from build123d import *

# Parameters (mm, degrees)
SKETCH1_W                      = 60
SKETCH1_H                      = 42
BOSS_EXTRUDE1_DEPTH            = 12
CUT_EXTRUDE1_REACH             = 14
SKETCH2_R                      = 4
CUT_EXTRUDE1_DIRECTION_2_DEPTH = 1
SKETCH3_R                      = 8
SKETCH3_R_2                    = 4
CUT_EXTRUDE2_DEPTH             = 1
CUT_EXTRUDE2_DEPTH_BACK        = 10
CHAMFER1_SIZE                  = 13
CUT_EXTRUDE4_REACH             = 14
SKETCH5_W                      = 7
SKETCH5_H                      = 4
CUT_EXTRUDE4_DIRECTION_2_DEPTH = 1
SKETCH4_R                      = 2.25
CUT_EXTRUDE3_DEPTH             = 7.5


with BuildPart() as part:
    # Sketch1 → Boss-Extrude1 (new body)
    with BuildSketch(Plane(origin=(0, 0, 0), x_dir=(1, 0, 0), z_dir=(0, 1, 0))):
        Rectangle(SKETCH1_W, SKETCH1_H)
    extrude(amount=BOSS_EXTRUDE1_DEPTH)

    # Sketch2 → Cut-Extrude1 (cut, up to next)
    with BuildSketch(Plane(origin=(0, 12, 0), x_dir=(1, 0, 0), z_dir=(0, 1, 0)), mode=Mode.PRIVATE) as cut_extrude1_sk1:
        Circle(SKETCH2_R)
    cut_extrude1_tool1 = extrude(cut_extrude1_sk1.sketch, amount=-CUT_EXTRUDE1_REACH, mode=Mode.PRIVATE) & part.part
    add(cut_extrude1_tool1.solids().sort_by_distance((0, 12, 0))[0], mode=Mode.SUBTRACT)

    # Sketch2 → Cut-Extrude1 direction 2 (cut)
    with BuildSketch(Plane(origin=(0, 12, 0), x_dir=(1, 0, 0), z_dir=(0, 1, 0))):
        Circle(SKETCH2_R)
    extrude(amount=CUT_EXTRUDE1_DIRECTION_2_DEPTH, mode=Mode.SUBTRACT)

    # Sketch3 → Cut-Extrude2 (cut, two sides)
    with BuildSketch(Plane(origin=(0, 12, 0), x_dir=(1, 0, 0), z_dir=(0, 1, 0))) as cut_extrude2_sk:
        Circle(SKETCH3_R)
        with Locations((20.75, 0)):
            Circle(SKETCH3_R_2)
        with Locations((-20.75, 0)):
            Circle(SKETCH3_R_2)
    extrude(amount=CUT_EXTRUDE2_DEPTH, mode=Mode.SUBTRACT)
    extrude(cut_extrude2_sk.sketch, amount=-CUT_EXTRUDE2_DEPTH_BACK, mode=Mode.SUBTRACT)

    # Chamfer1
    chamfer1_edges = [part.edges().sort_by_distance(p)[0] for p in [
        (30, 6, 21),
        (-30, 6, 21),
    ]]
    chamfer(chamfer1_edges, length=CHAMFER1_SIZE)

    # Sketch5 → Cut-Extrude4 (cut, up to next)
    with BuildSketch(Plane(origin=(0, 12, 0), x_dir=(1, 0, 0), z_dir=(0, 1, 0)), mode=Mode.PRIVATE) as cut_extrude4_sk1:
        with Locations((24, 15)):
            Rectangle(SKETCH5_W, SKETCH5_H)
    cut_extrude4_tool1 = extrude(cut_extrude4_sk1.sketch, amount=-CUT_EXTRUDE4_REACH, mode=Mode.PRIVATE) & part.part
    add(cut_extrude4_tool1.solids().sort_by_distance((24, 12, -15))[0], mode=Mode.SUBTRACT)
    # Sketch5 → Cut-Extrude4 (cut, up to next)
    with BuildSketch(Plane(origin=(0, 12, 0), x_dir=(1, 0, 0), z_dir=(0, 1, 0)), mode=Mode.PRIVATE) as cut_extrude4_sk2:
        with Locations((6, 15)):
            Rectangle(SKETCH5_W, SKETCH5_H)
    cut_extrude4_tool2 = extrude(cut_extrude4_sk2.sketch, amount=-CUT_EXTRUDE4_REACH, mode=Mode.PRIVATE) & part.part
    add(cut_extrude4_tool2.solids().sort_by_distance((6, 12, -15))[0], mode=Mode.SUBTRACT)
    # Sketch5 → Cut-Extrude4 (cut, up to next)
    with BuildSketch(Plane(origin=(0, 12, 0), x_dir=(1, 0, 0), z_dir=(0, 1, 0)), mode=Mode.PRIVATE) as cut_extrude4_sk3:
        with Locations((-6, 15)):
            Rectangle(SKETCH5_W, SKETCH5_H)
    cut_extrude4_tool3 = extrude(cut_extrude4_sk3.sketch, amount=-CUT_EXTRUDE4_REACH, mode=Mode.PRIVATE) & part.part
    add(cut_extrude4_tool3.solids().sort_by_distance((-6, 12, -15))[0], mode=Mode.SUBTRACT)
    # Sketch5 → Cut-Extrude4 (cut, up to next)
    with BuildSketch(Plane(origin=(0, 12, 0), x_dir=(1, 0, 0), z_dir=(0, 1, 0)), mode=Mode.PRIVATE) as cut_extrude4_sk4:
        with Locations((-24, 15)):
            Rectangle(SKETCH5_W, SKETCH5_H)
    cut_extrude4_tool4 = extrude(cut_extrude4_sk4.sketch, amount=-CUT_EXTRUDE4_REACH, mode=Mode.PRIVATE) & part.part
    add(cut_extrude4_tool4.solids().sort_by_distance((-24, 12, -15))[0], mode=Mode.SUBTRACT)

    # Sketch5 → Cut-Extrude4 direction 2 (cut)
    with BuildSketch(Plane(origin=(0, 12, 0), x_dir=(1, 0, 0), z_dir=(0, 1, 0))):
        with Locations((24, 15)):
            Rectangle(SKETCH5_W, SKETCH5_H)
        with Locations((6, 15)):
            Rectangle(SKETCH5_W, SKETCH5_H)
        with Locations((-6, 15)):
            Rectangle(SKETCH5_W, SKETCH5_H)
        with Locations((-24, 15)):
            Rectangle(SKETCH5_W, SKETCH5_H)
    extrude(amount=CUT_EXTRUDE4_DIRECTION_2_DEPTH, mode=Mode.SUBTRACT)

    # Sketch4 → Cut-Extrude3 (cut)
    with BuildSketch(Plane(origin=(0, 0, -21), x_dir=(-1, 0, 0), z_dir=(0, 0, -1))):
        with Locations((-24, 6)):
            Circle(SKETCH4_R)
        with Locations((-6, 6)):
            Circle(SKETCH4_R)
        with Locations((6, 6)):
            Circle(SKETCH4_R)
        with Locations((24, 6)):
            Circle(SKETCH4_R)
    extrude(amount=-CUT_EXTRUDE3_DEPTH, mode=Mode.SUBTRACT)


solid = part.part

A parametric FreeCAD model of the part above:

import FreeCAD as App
import Part
import Sketcher


def edges_at(feature, points):
    """Names of the edges that pass closest to the given points."""
    edges = feature.Shape.Edges
    near = lambda p: min(range(len(edges)), key=lambda i: edges[i].distToShape(Part.Vertex(*p))[0])
    return sorted({f"Edge{near(p) + 1}" for p in points})

doc = App.newDocument("Part")
body = doc.addObject("PartDesign::Body", "Body")

# Sketch on XZ plane
sketch1 = doc.addObject("Sketcher::SketchObject", "Sketch")
body.addObject(sketch1)
sketch1.AttachmentSupport = (doc.XZ_Plane, [""])
sketch1.MapMode = "FlatFace"
sketch1.addGeometry([
    Part.LineSegment(App.Vector(-30, -21, 0), App.Vector(-30, 21, 0)),
    Part.LineSegment(App.Vector(-30, 21, 0), App.Vector(30, 21, 0)),
    Part.LineSegment(App.Vector(30, 21, 0), App.Vector(30, -21, 0)),
    Part.LineSegment(App.Vector(30, -21, 0), App.Vector(-30, -21, 0)),
], False)
sketch1.addConstraint([
    Sketcher.Constraint("Coincident", 0, 2, 1, 1),
    Sketcher.Constraint("Coincident", 1, 2, 2, 1),
    Sketcher.Constraint("Coincident", 2, 2, 3, 1),
    Sketcher.Constraint("Coincident", 3, 2, 0, 1),
    Sketcher.Constraint("Vertical", 0),
    Sketcher.Constraint("Horizontal", 1),
    Sketcher.Constraint("Vertical", 2),
    Sketcher.Constraint("Horizontal", 3),
    Sketcher.Constraint("Symmetric", 0, 2, 2, 2, -1, 1),
    Sketcher.Constraint("DistanceX", 1, 1, 1, 2, 60.0),
    Sketcher.Constraint("DistanceY", 0, 1, 0, 2, 42.0),
])
pad1 = doc.addObject("PartDesign::Pad", "Pad")
body.addObject(pad1)
pad1.Profile = sketch1
pad1.Length = 12
pad1.Reversed = True

# Sketch on XZ plane
sketch2 = doc.addObject("Sketcher::SketchObject", "Sketch001")
body.addObject(sketch2)
sketch2.AttachmentSupport = (doc.XZ_Plane, [""])
sketch2.MapMode = "FlatFace"
sketch2.AttachmentOffset = App.Placement(App.Vector(0, 0, -12), App.Rotation())
sketch2.addGeometry(Part.Circle(App.Vector(0, 0, 0), App.Vector(0, 0, 1), 4), False)
sketch2.addConstraint([
    Sketcher.Constraint("Coincident", 0, 3, -1, 1),
    Sketcher.Constraint("Diameter", 0, 8.0),
])
pocket1 = doc.addObject("PartDesign::Pocket", "Pocket")
body.addObject(pocket1)
pocket1.Profile = sketch2
pocket1.Type = "UpToFirst"
pocket1.Reversed = True

# Sketch on XZ plane
sketch3 = doc.addObject("Sketcher::SketchObject", "Sketch002")
body.addObject(sketch3)
sketch3.AttachmentSupport = (doc.XZ_Plane, [""])
sketch3.MapMode = "FlatFace"
sketch3.AttachmentOffset = App.Placement(App.Vector(0, 0, -12), App.Rotation())
sketch3.addGeometry(Part.Circle(App.Vector(0, 0, 0), App.Vector(0, 0, 1), 4), False)
sketch3.addConstraint([
    Sketcher.Constraint("Coincident", 0, 3, -1, 1),
    Sketcher.Constraint("Diameter", 0, 8.0),
])
pocket2 = doc.addObject("PartDesign::Pocket", "Pocket001")
body.addObject(pocket2)
pocket2.Profile = sketch3
pocket2.Length = 1

# Sketch on XZ plane
sketch4 = doc.addObject("Sketcher::SketchObject", "Sketch003")
body.addObject(sketch4)
sketch4.AttachmentSupport = (doc.XZ_Plane, [""])
sketch4.MapMode = "FlatFace"
sketch4.AttachmentOffset = App.Placement(App.Vector(0, 0, -12), App.Rotation())
sketch4.addGeometry([
    Part.Circle(App.Vector(0, 0, 0), App.Vector(0, 0, 1), 8),
    Part.Circle(App.Vector(20.75, 0, 0), App.Vector(0, 0, 1), 4),
    Part.Circle(App.Vector(-20.75, 0, 0), App.Vector(0, 0, 1), 4),
], False)
sketch4.addConstraint([
    Sketcher.Constraint("Coincident", 0, 3, -1, 1),
    Sketcher.Constraint("Equal", 1, 2),
    Sketcher.Constraint("Symmetric", 1, 3, 2, 3, -1, 1),
    Sketcher.Constraint("PointOnObject", 1, 3, -1),
    Sketcher.Constraint("Diameter", 0, 16.0),
    Sketcher.Constraint("Diameter", 1, 8.0),
    Sketcher.Constraint("DistanceX", 2, 3, 1, 3, 41.5),
])
pocket3 = doc.addObject("PartDesign::Pocket", "Pocket002")
body.addObject(pocket3)
pocket3.Profile = sketch4
pocket3.Type = "TwoLengths"
pocket3.Length = 1
pocket3.Length2 = 10
doc.recompute()

chamfer = doc.addObject("PartDesign::Chamfer", "Chamfer")
body.addObject(chamfer)
chamfer.Base = (pocket3, edges_at(pocket3, [(30, 6, 21), (-30, 6, 21)]))
chamfer.Size = 13

# Sketch on XZ plane
sketch5 = doc.addObject("Sketcher::SketchObject", "Sketch004")
body.addObject(sketch5)
sketch5.AttachmentSupport = (doc.XZ_Plane, [""])
sketch5.MapMode = "FlatFace"
sketch5.AttachmentOffset = App.Placement(App.Vector(0, 0, -12), App.Rotation())
sketch5.addGeometry([
    Part.LineSegment(App.Vector(20.5, -17, 0), App.Vector(20.5, -13, 0)),
    Part.LineSegment(App.Vector(20.5, -13, 0), App.Vector(27.5, -13, 0)),
    Part.LineSegment(App.Vector(27.5, -13, 0), App.Vector(27.5, -17, 0)),
    Part.LineSegment(App.Vector(27.5, -17, 0), App.Vector(20.5, -17, 0)),
], False)
sketch5.addConstraint([
    Sketcher.Constraint("Coincident", 0, 2, 1, 1),
    Sketcher.Constraint("Coincident", 1, 2, 2, 1),
    Sketcher.Constraint("Coincident", 2, 2, 3, 1),
    Sketcher.Constraint("Coincident", 3, 2, 0, 1),
    Sketcher.Constraint("Vertical", 0),
    Sketcher.Constraint("Horizontal", 1),
    Sketcher.Constraint("Vertical", 2),
    Sketcher.Constraint("Horizontal", 3),
    Sketcher.Constraint("DistanceX", 1, 1, 1, 2, 7.0),
    Sketcher.Constraint("DistanceY", 0, 1, 0, 2, 4.0),
    Sketcher.Constraint("DistanceY", 0, 2, -1, 1, 13.0),
    Sketcher.Constraint("DistanceX", -1, 1, 0, 2, 20.5),
])
pocket4 = doc.addObject("PartDesign::Pocket", "Pocket003")
body.addObject(pocket4)
pocket4.Profile = sketch5
pocket4.Type = "UpToFirst"
pocket4.Reversed = True

# Sketch on XZ plane
sketch6 = doc.addObject("Sketcher::SketchObject", "Sketch005")
body.addObject(sketch6)
sketch6.AttachmentSupport = (doc.XZ_Plane, [""])
sketch6.MapMode = "FlatFace"
sketch6.AttachmentOffset = App.Placement(App.Vector(0, 0, -12), App.Rotation())
sketch6.addGeometry([
    Part.LineSegment(App.Vector(2.5, -17, 0), App.Vector(2.5, -13, 0)),
    Part.LineSegment(App.Vector(2.5, -13, 0), App.Vector(9.5, -13, 0)),
    Part.LineSegment(App.Vector(9.5, -13, 0), App.Vector(9.5, -17, 0)),
    Part.LineSegment(App.Vector(9.5, -17, 0), App.Vector(2.5, -17, 0)),
], False)
sketch6.addConstraint([
    Sketcher.Constraint("Coincident", 0, 2, 1, 1),
    Sketcher.Constraint("Coincident", 1, 2, 2, 1),
    Sketcher.Constraint("Coincident", 2, 2, 3, 1),
    Sketcher.Constraint("Coincident", 3, 2, 0, 1),
    Sketcher.Constraint("Vertical", 0),
    Sketcher.Constraint("Horizontal", 1),
    Sketcher.Constraint("Vertical", 2),
    Sketcher.Constraint("Horizontal", 3),
    Sketcher.Constraint("DistanceX", 1, 1, 1, 2, 7.0),
    Sketcher.Constraint("DistanceY", 0, 1, 0, 2, 4.0),
    Sketcher.Constraint("DistanceY", 0, 2, -1, 1, 13.0),
    Sketcher.Constraint("DistanceX", -1, 1, 0, 2, 2.5),
])
pocket5 = doc.addObject("PartDesign::Pocket", "Pocket004")
body.addObject(pocket5)
pocket5.Profile = sketch6
pocket5.Type = "UpToFirst"
pocket5.Reversed = True

# Sketch on XZ plane
sketch7 = doc.addObject("Sketcher::SketchObject", "Sketch006")
body.addObject(sketch7)
sketch7.AttachmentSupport = (doc.XZ_Plane, [""])
sketch7.MapMode = "FlatFace"
sketch7.AttachmentOffset = App.Placement(App.Vector(0, 0, -12), App.Rotation())
sketch7.addGeometry([
    Part.LineSegment(App.Vector(-9.5, -17, 0), App.Vector(-9.5, -13, 0)),
    Part.LineSegment(App.Vector(-9.5, -13, 0), App.Vector(-2.5, -13, 0)),
    Part.LineSegment(App.Vector(-2.5, -13, 0), App.Vector(-2.5, -17, 0)),
    Part.LineSegment(App.Vector(-2.5, -17, 0), App.Vector(-9.5, -17, 0)),
], False)
sketch7.addConstraint([
    Sketcher.Constraint("Coincident", 0, 2, 1, 1),
    Sketcher.Constraint("Coincident", 1, 2, 2, 1),
    Sketcher.Constraint("Coincident", 2, 2, 3, 1),
    Sketcher.Constraint("Coincident", 3, 2, 0, 1),
    Sketcher.Constraint("Vertical", 0),
    Sketcher.Constraint("Horizontal", 1),
    Sketcher.Constraint("Vertical", 2),
    Sketcher.Constraint("Horizontal", 3),
    Sketcher.Constraint("DistanceX", 1, 1, 1, 2, 7.0),
    Sketcher.Constraint("DistanceY", 0, 1, 0, 2, 4.0),
    Sketcher.Constraint("DistanceY", 0, 2, -1, 1, 13.0),
    Sketcher.Constraint("DistanceX", 0, 2, -1, 1, 9.5),
])
pocket6 = doc.addObject("PartDesign::Pocket", "Pocket005")
body.addObject(pocket6)
pocket6.Profile = sketch7
pocket6.Type = "UpToFirst"
pocket6.Reversed = True

# Sketch on XZ plane
sketch8 = doc.addObject("Sketcher::SketchObject", "Sketch007")
body.addObject(sketch8)
sketch8.AttachmentSupport = (doc.XZ_Plane, [""])
sketch8.MapMode = "FlatFace"
sketch8.AttachmentOffset = App.Placement(App.Vector(0, 0, -12), App.Rotation())
sketch8.addGeometry([
    Part.LineSegment(App.Vector(-27.5, -17, 0), App.Vector(-27.5, -13, 0)),
    Part.LineSegment(App.Vector(-27.5, -13, 0), App.Vector(-20.5, -13, 0)),
    Part.LineSegment(App.Vector(-20.5, -13, 0), App.Vector(-20.5, -17, 0)),
    Part.LineSegment(App.Vector(-20.5, -17, 0), App.Vector(-27.5, -17, 0)),
], False)
sketch8.addConstraint([
    Sketcher.Constraint("Coincident", 0, 2, 1, 1),
    Sketcher.Constraint("Coincident", 1, 2, 2, 1),
    Sketcher.Constraint("Coincident", 2, 2, 3, 1),
    Sketcher.Constraint("Coincident", 3, 2, 0, 1),
    Sketcher.Constraint("Vertical", 0),
    Sketcher.Constraint("Horizontal", 1),
    Sketcher.Constraint("Vertical", 2),
    Sketcher.Constraint("Horizontal", 3),
    Sketcher.Constraint("DistanceX", 1, 1, 1, 2, 7.0),
    Sketcher.Constraint("DistanceY", 0, 1, 0, 2, 4.0),
    Sketcher.Constraint("DistanceY", 0, 2, -1, 1, 13.0),
    Sketcher.Constraint("DistanceX", 0, 2, -1, 1, 27.5),
])
pocket7 = doc.addObject("PartDesign::Pocket", "Pocket006")
body.addObject(pocket7)
pocket7.Profile = sketch8
pocket7.Type = "UpToFirst"
pocket7.Reversed = True

# Sketch on XZ plane
sketch9 = doc.addObject("Sketcher::SketchObject", "Sketch008")
body.addObject(sketch9)
sketch9.AttachmentSupport = (doc.XZ_Plane, [""])
sketch9.MapMode = "FlatFace"
sketch9.AttachmentOffset = App.Placement(App.Vector(0, 0, -12), App.Rotation())
sketch9.addGeometry([
    Part.LineSegment(App.Vector(20.5, -17, 0), App.Vector(20.5, -13, 0)),  # 0
    Part.LineSegment(App.Vector(20.5, -13, 0), App.Vector(27.5, -13, 0)),  # 1
    Part.LineSegment(App.Vector(27.5, -13, 0), App.Vector(27.5, -17, 0)),  # 2
    Part.LineSegment(App.Vector(27.5, -17, 0), App.Vector(20.5, -17, 0)),  # 3
    Part.LineSegment(App.Vector(2.5, -17, 0), App.Vector(2.5, -13, 0)),  # 4
    Part.LineSegment(App.Vector(2.5, -13, 0), App.Vector(9.5, -13, 0)),  # 5
    Part.LineSegment(App.Vector(9.5, -13, 0), App.Vector(9.5, -17, 0)),  # 6
    Part.LineSegment(App.Vector(9.5, -17, 0), App.Vector(2.5, -17, 0)),  # 7
    Part.LineSegment(App.Vector(-9.5, -17, 0), App.Vector(-9.5, -13, 0)),  # 8
    Part.LineSegment(App.Vector(-9.5, -13, 0), App.Vector(-2.5, -13, 0)),  # 9
    Part.LineSegment(App.Vector(-2.5, -13, 0), App.Vector(-2.5, -17, 0)),  # 10
    Part.LineSegment(App.Vector(-2.5, -17, 0), App.Vector(-9.5, -17, 0)),  # 11
    Part.LineSegment(App.Vector(-27.5, -17, 0), App.Vector(-27.5, -13, 0)),  # 12
    Part.LineSegment(App.Vector(-27.5, -13, 0), App.Vector(-20.5, -13, 0)),  # 13
    Part.LineSegment(App.Vector(-20.5, -13, 0), App.Vector(-20.5, -17, 0)),  # 14
    Part.LineSegment(App.Vector(-20.5, -17, 0), App.Vector(-27.5, -17, 0)),  # 15
], False)
sketch9.addConstraint([
    Sketcher.Constraint("Coincident", 0, 2, 1, 1),
    Sketcher.Constraint("Coincident", 1, 2, 2, 1),
    Sketcher.Constraint("Coincident", 2, 2, 3, 1),
    Sketcher.Constraint("Coincident", 3, 2, 0, 1),
    Sketcher.Constraint("Coincident", 4, 2, 5, 1),
    Sketcher.Constraint("Coincident", 5, 2, 6, 1),
    Sketcher.Constraint("Coincident", 6, 2, 7, 1),
    Sketcher.Constraint("Coincident", 7, 2, 4, 1),
    Sketcher.Constraint("Coincident", 8, 2, 9, 1),
    Sketcher.Constraint("Coincident", 9, 2, 10, 1),
    Sketcher.Constraint("Coincident", 10, 2, 11, 1),
    Sketcher.Constraint("Coincident", 11, 2, 8, 1),
    Sketcher.Constraint("Coincident", 12, 2, 13, 1),
    Sketcher.Constraint("Coincident", 13, 2, 14, 1),
    Sketcher.Constraint("Coincident", 14, 2, 15, 1),
    Sketcher.Constraint("Coincident", 15, 2, 12, 1),
    Sketcher.Constraint("Vertical", 0),
    Sketcher.Constraint("Horizontal", 1),
    Sketcher.Constraint("Vertical", 2),
    Sketcher.Constraint("Horizontal", 3),
    Sketcher.Constraint("Vertical", 4),
    Sketcher.Constraint("Horizontal", 5),
    Sketcher.Constraint("Vertical", 6),
    Sketcher.Constraint("Horizontal", 7),
    Sketcher.Constraint("Vertical", 8),
    Sketcher.Constraint("Horizontal", 9),
    Sketcher.Constraint("Vertical", 10),
    Sketcher.Constraint("Horizontal", 11),
    Sketcher.Constraint("Vertical", 12),
    Sketcher.Constraint("Horizontal", 13),
    Sketcher.Constraint("Vertical", 14),
    Sketcher.Constraint("Horizontal", 15),
    Sketcher.Constraint("Symmetric", 5, 2, 8, 2, -2),
    Sketcher.Constraint("Symmetric", 7, 2, 10, 2, -2),
    Sketcher.Constraint("Symmetric", 1, 2, 12, 2, -2),
    Sketcher.Constraint("Symmetric", 3, 2, 14, 2, -2),
    Sketcher.Constraint("Horizontal", 1, 2, 4, 2),
    Sketcher.Constraint("Horizontal", 3, 2, 6, 2),
    Sketcher.Constraint("Equal", 3, 5),
    Sketcher.Constraint("DistanceX", 1, 1, 1, 2, 7.0),
    Sketcher.Constraint("DistanceY", 0, 1, 0, 2, 4.0),
    Sketcher.Constraint("DistanceY", 0, 2, -1, 1, 13.0),
    Sketcher.Constraint("DistanceX", 4, 2, 0, 2, 18.0),
    Sketcher.Constraint("DistanceX", 8, 2, 4, 2, 12.0),
])
pocket8 = doc.addObject("PartDesign::Pocket", "Pocket007")
body.addObject(pocket8)
pocket8.Profile = sketch9
pocket8.Length = 1

# Sketch on XY plane
sketch10 = doc.addObject("Sketcher::SketchObject", "Sketch009")
body.addObject(sketch10)
sketch10.AttachmentSupport = (doc.XY_Plane, [""])
sketch10.MapMode = "FlatFace"
sketch10.AttachmentOffset = App.Placement(App.Vector(0, 0, -21), App.Rotation())
sketch10.addGeometry([
    Part.Circle(App.Vector(24, 6, 0), App.Vector(0, 0, 1), 2.25),
    Part.Circle(App.Vector(6, 6, 0), App.Vector(0, 0, 1), 2.25),
    Part.Circle(App.Vector(-6, 6, 0), App.Vector(0, 0, 1), 2.25),
    Part.Circle(App.Vector(-24, 6, 0), App.Vector(0, 0, 1), 2.25),
], False)
sketch10.addConstraint([
    Sketcher.Constraint("Equal", 0, 1),
    Sketcher.Constraint("Equal", 1, 2),
    Sketcher.Constraint("Equal", 2, 3),
    Sketcher.Constraint("Symmetric", 1, 3, 2, 3, -2),
    Sketcher.Constraint("Symmetric", 0, 3, 3, 3, -2),
    Sketcher.Constraint("Horizontal", 0, 3, 1, 3),
    Sketcher.Constraint("Diameter", 0, 4.5),
    Sketcher.Constraint("DistanceX", -1, 1, 0, 3, 24.0),
    Sketcher.Constraint("DistanceY", -1, 1, 0, 3, 6.0),
    Sketcher.Constraint("DistanceX", -1, 1, 1, 3, 6.0),
])
pocket9 = doc.addObject("PartDesign::Pocket", "Pocket008")
body.addObject(pocket9)
pocket9.Profile = sketch10
pocket9.Length = 7.5
pocket9.Reversed = True

doc.recompute()
